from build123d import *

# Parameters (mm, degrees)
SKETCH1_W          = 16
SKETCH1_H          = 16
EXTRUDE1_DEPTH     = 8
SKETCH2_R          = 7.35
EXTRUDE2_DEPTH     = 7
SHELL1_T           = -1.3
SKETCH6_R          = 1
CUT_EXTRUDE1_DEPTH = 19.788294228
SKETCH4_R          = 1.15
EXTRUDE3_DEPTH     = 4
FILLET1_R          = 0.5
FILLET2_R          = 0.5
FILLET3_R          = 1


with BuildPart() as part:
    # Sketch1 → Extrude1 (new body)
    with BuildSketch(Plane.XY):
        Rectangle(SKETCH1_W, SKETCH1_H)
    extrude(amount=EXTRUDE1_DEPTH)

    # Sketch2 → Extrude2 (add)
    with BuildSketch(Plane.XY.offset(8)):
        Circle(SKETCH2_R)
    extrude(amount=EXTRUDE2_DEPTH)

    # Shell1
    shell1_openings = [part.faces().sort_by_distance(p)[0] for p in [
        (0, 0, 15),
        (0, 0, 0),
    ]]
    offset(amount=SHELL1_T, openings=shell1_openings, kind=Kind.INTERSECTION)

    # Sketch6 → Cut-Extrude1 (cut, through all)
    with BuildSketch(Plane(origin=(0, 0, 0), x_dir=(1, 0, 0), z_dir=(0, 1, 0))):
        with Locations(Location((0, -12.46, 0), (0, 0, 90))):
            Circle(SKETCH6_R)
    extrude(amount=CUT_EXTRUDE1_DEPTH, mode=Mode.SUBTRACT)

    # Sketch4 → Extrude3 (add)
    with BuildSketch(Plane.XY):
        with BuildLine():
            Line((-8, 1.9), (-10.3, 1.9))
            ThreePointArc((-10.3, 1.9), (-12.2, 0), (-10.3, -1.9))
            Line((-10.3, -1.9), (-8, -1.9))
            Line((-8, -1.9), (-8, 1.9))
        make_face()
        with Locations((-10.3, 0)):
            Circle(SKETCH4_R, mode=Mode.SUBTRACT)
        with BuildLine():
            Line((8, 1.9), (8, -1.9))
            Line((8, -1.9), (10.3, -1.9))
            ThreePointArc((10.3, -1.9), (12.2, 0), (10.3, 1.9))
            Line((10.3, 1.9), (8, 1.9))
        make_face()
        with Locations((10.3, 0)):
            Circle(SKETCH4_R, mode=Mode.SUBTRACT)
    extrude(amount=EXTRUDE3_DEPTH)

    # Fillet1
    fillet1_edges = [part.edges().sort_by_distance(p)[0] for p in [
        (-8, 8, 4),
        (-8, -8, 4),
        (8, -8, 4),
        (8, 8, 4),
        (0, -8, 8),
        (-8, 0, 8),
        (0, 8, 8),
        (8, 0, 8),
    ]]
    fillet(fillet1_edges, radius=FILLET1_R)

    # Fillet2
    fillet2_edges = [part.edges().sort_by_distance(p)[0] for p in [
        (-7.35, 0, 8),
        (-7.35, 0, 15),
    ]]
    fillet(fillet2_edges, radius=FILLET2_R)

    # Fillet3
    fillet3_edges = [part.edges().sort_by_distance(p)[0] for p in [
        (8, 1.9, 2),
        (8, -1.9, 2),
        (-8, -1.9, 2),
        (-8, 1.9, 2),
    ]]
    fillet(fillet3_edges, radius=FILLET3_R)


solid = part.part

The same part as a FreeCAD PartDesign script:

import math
import FreeCAD as App
import Part
import Sketcher

V = App.Vector


def edges_at(feature, points):
    """Names of the edges that pass closest to the given points."""
    edges = feature.Shape.Edges
    near = lambda p: min(range(len(edges)), key=lambda i: edges[i].distToShape(Part.Vertex(*p))[0])
    return sorted({f"Edge{near(p) + 1}" for p in points})


def faces_at(feature, points):
    """Names of the faces that lie closest to the given points."""
    faces = feature.Shape.Faces
    near = lambda p: min(range(len(faces)), key=lambda i: faces[i].distToShape(Part.Vertex(*p))[0])
    return sorted({f"Face{near(p) + 1}" for p in points})


def add_polygon(sketch, points):
    """Adds a closed chain of lines whose ends are joined by coincident constraints."""
    first, n = sketch.GeometryCount, len(points)
    for a, b in zip(points, points[1:] + points[:1]):
        sketch.addGeometry(Part.LineSegment(App.Vector(*a, 0), App.Vector(*b, 0)), False)
    for i in range(n):
        sketch.addConstraint(Sketcher.Constraint("Coincident", first + i, 2, first + (i + 1) % n, 1))

doc = App.newDocument("Part")
params = doc.addObject("Spreadsheet::Sheet", "Params")
for row, (alias, value) in enumerate([
    ("sketch1_width", "16 mm"),
    ("pad1_length", "8 mm"),
    ("sketch2_diameter", "14.7 mm"),
    ("pad2_length", "7 mm"),
    ("thickness_wall", "1.3 mm"),
    ("sketch3_diameter", "2 mm"),
    ("sketch4_diameter", "2.3 mm"),
    ("sketch4_radius", "1.9 mm"),
    ("sketch4_width", "2.3 mm"),
    ("pad3_length", "4 mm"),
    ("fillet_radius", "0.5 mm"),
    ("fillet2_radius", "0.5 mm"),
    ("fillet3_radius", "1 mm"),
], start=1):
    params.set(f"A{row}", alias)
    params.set(f"B{row}", "=" + value)
    params.setAlias(f"B{row}", alias)

body = doc.addObject("PartDesign::Body", "Body")

sketch1 = doc.addObject("Sketcher::SketchObject", "Sketch")
body.addObject(sketch1)
sketch1.AttachmentSupport = (doc.XY_Plane, [""])
sketch1.MapMode = "FlatFace"
add_polygon(sketch1, [(-8, 8), (-8, -8), (8, -8), (8, 8)])
sketch1.addConstraint(Sketcher.Constraint("Vertical", 0))
sketch1.addConstraint(Sketcher.Constraint("Horizontal", 1))
sketch1.addConstraint(Sketcher.Constraint("Vertical", 2))
sketch1.addConstraint(Sketcher.Constraint("Horizontal", 3))
sketch1.addConstraint(Sketcher.Constraint("Symmetric", 0, 2, 2, 2, -1, 1))
sketch1.addConstraint(Sketcher.Constraint("Equal", 3, 0))
sketch1.addConstraint(Sketcher.Constraint("DistanceX", 1, 1, 1, 2, 16.0))
sketch1.setExpression("Constraints[10]", "Params.sketch1_width")
pad1 = doc.addObject("PartDesign::Pad", "Pad")
body.addObject(pad1)
pad1.Profile = sketch1
pad1.setExpression("Length", "Params.pad1_length")

sketch2 = doc.addObject("Sketcher::SketchObject", "Sketch001")
body.addObject(sketch2)
sketch2.AttachmentSupport = (doc.XY_Plane, [""])
sketch2.MapMode = "FlatFace"
sketch2.AttachmentOffset = App.Placement(V(0, 0, 8), App.Rotation())
sketch2.addGeometry(Part.Circle(V(0, 0, 0), V(0, 0, 1), 7), False)
sketch2.addConstraint(Sketcher.Constraint("Coincident", 0, 3, -1, 1))
sketch2.addConstraint(Sketcher.Constraint("Diameter", 0, 14.7))
sketch2.setExpression("Constraints[1]", "Params.sketch2_diameter")
pad2 = doc.addObject("PartDesign::Pad", "Pad001")
body.addObject(pad2)
pad2.Profile = sketch2
pad2.setExpression("Length", "Params.pad2_length")
doc.recompute()

thickness = doc.addObject("PartDesign::Thickness", "Thickness")
body.addObject(thickness)
thickness.Base = (pad2, faces_at(pad2, [(0, 0, 15), (0, 0, 0)]))
thickness.setExpression("Value", "Params.thickness_wall")
thickness.Reversed = True
thickness.Join = "Intersection"

sketch3 = doc.addObject("Sketcher::SketchObject", "Sketch002")
body.addObject(sketch3)
sketch3.AttachmentSupport = (doc.XZ_Plane, [""])
sketch3.MapMode = "FlatFace"
sketch3.addGeometry(Part.Circle(V(0, 12.5, 0), V(0, 0, 1), 1), False)
sketch3.addConstraint(Sketcher.Constraint("PointOnObject", 0, 3, -2))
sketch3.addConstraint(Sketcher.Constraint("Diameter", 0, 2.0))
sketch3.addConstraint(Sketcher.Constraint("DistanceY", -1, 1, 0, 3, 12.46))
sketch3.setExpression("Constraints[1]", "Params.sketch3_diameter")
pocket1 = doc.addObject("PartDesign::Pocket", "Pocket")
body.addObject(pocket1)
pocket1.Profile = sketch3
pocket1.Type = "ThroughAll"

sketch4 = doc.addObject("Sketcher::SketchObject", "Sketch003")
body.addObject(sketch4)
sketch4.AttachmentSupport = (doc.XY_Plane, [""])
sketch4.MapMode = "FlatFace"
sketch4.addGeometry(Part.LineSegment(V(-8, 1.9, 0), V(-10.3, 1.9, 0)), False)
sketch4.addGeometry(Part.ArcOfCircle(Part.Circle(V(-10.3, 0, 0), V(0, 0, 1), 1.9), math.radians(90), math.radians(270)), False)
sketch4.addGeometry(Part.LineSegment(V(-10.3, -1.9, 0), V(-8, -1.9, 0)), False)
sketch4.addGeometry(Part.LineSegment(V(-8, -1.9, 0), V(-8, 1.9, 0)), False)
sketch4.addGeometry(Part.Circle(V(-10.3, 0, 0), V(0, 0, 1), 1.1), False)
sketch4.addGeometry(Part.LineSegment(V(8, 1.9, 0), V(8, -1.9, 0)), False)
sketch4.addGeometry(Part.LineSegment(V(8, -1.9, 0), V(10.3, -1.9, 0)), False)
sketch4.addGeometry(Part.ArcOfCircle(Part.Circle(V(10.3, 0, 0), V(0, 0, 1), 1.9), math.radians(-90), math.radians(90)), False)
sketch4.addGeometry(Part.LineSegment(V(10.3, 1.9, 0), V(8, 1.9, 0)), False)
sketch4.addGeometry(Part.Circle(V(10.3, 0, 0), V(0, 0, 1), 1.1), False)
sketch4.addConstraint(Sketcher.Constraint("Tangent", 0, 2, 1, 1))
sketch4.addConstraint(Sketcher.Constraint("Tangent", 1, 2, 2, 1))
sketch4.addConstraint(Sketcher.Constraint("Coincident", 2, 2, 3, 1))
sketch4.addConstraint(Sketcher.Constraint("Coincident", 3, 2, 0, 1))
sketch4.addConstraint(Sketcher.Constraint("Coincident", 5, 2, 6, 1))
sketch4.addConstraint(Sketcher.Constraint("Tangent", 6, 2, 7, 1))
sketch4.addConstraint(Sketcher.Constraint("Tangent", 7, 2, 8, 1))
sketch4.addConstraint(Sketcher.Constraint("Coincident", 8, 2, 5, 1))
sketch4.addConstraint(Sketcher.Constraint("Horizontal", 0))
sketch4.addConstraint(Sketcher.Constraint("Horizontal", 2))
sketch4.addConstraint(Sketcher.Constraint("Vertical", 3))
sketch4.addConstraint(Sketcher.Constraint("Vertical", 5))
sketch4.addConstraint(Sketcher.Constraint("Horizontal", 6))
sketch4.addConstraint(Sketcher.Constraint("Horizontal", 8))
sketch4.addConstraint(Sketcher.Constraint("Coincident", 4, 3, 1, 3))
sketch4.addConstraint(Sketcher.Constraint("Coincident", 9, 3, 7, 3))
sketch4.addConstraint(Sketcher.Constraint("Equal", 1, 7))
sketch4.addConstraint(Sketcher.Constraint("Equal", 4, 9))
sketch4.addConstraint(Sketcher.Constraint("Symmetric", 1, 3, 7, 3, -1, 1))
sketch4.addConstraint(Sketcher.Constraint("Symmetric", 2, 2, 5, 2, -2))
sketch4.addConstraint(Sketcher.Constraint("Diameter", 4, 2.3))
sketch4.addConstraint(Sketcher.Constraint("Radius", 1, 1.9))
sketch4.addConstraint(Sketcher.Constraint("DistanceX", 0, 2, 0, 1, 2.3))
sketch4.addConstraint(Sketcher.Constraint("DistanceX", 2, 2, -1, 1, 8.0))
sketch4.setExpression("Constraints[20]", "Params.sketch4_diameter")
sketch4.setExpression("Constraints[21]", "Params.sketch4_radius")
sketch4.setExpression("Constraints[22]", "Params.sketch4_width")
pad3 = doc.addObject("PartDesign::Pad", "Pad002")
body.addObject(pad3)
pad3.Profile = sketch4
pad3.setExpression("Length", "Params.pad3_length")
doc.recompute()

fillet = doc.addObject("PartDesign::Fillet", "Fillet")
body.addObject(fillet)
fillet.Base = (pad3, edges_at(pad3, [
    (-8, 8, 4),
    (-8, -8, 4),
    (8, -8, 4),
    (8, 8, 4),
    (0, -8, 8),
    (-8, 0, 8),
    (0, 8, 8),
    (8, 0, 8),
]))
fillet.setExpression("Radius", "Params.fillet_radius")
doc.recompute()

fillet2 = doc.addObject("PartDesign::Fillet", "Fillet001")
body.addObject(fillet2)
fillet2.Base = (fillet, edges_at(fillet, [(-7.35, 0, 8), (-7.35, 0, 15)]))
fillet2.setExpression("Radius", "Params.fillet2_radius")
doc.recompute()

fillet3 = doc.addObject("PartDesign::Fillet", "Fillet002")
body.addObject(fillet3)
fillet3.Base = (fillet2, edges_at(fillet2, [
    (8, 1.9, 2),
    (8, -1.9, 2),
    (-8, -1.9, 2),
    (-8, 1.9, 2),
]))
fillet3.setExpression("Radius", "Params.fillet3_radius")

doc.recompute()
